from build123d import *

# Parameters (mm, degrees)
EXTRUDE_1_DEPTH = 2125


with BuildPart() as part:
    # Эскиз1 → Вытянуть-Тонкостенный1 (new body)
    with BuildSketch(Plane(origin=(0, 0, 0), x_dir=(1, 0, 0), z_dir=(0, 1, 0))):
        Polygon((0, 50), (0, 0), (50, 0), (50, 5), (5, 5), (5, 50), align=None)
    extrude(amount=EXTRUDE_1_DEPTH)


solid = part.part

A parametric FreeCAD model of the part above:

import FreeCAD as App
import Part
import Sketcher
from FreeCAD import Vector
Q = App.Units.Quantity


def add_polygon(sketch, points):
    """Adds a closed chain of lines whose ends are joined by coincident constraints."""
    first, n = sketch.GeometryCount, len(points)
    for a, b in zip(points, points[1:] + points[:1]):
        sketch.addGeometry(Part.LineSegment(App.Vector(*a, 0), App.Vector(*b, 0)), False)
    for i in range(n):
        sketch.addConstraint(Sketcher.Constraint("Coincident", first + i, 2, first + (i + 1) % n, 1))

doc = App.newDocument("Part")
body = doc.addObject("PartDesign::Body", "Body")

# Sketch on XZ plane
sketch1 = body.newObject("Sketcher::SketchObject", "Sketch")
sketch1.AttachmentSupport = (doc.getObject("XZ_Plane"), [""])
sketch1.MapMode = "FlatFace"
add_polygon(sketch1, [(0, -50), (0, 0), (50, 0), (50, -5), (5, -5), (5, -50)])  # lines 0-5
sketch1.addConstraint(Sketcher.Constraint("Vertical", 0))
sketch1.addConstraint(Sketcher.Constraint("Horizontal", 1))
sketch1.addConstraint(Sketcher.Constraint("Vertical", 2))
sketch1.addConstraint(Sketcher.Constraint("Horizontal", 3))
sketch1.addConstraint(Sketcher.Constraint("Vertical", 4))
sketch1.addConstraint(Sketcher.Constraint("Horizontal", 5))
sketch1.addConstraint(Sketcher.Constraint("Coincident", 0, 2, -1, 1))
sketch1.addConstraint(Sketcher.Constraint("Equal", 1, 0))
sketch1.addConstraint(Sketcher.Constraint("Equal", 5, 2))
sketch1.addConstraint(Sketcher.Constraint("DistanceX", 1, 1, 1, 2, Q("50 mm")))
sketch1.addConstraint(Sketcher.Constraint("DistanceX", 3, 2, 3, 1, Q("45 mm")))
pad1 = body.newObject("PartDesign::Pad", "Pad")
pad1.Profile = sketch1
pad1.Length = 2125
pad1.Reversed = True

doc.recompute()
